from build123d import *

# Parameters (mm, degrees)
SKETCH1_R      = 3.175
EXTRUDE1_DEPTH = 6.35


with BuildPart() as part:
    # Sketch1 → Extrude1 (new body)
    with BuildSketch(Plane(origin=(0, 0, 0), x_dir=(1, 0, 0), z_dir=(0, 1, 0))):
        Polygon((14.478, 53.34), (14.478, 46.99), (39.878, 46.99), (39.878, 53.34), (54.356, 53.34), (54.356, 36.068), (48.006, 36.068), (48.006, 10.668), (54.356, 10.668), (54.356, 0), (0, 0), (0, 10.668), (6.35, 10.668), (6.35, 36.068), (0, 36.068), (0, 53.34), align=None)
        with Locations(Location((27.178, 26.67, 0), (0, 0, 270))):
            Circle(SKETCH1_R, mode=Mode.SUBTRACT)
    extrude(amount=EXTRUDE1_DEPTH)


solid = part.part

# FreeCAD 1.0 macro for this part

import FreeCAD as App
import Part
import Sketcher

V = App.Vector
Q = App.Units.Quantity

doc = App.newDocument("Part")
params = doc.addObject("Spreadsheet::Sheet", "Params")
for row, (alias, value) in enumerate([
    ("sketch1_diameter", "0.25 in"),
    ("sketch1_width", "1 in"),
    ("sketch1_width2", "0.57 in"),
    ("sketch1_width3", "0.25 in"),
    ("sketch1_height", "0.68 in"),
    ("pad1_length", "0.25 in"),
], start=1):
    params.set(f"A{row}", alias)
    params.set(f"B{row}", "=" + value)
    params.setAlias(f"B{row}", alias)

body = doc.addObject("PartDesign::Body", "Body")

sketch1 = body.newObject("Sketcher::SketchObject", "Sketch")
sketch1.AttachmentSupport = (doc.getObject("XZ_Plane"), [""])
sketch1.MapMode = "FlatFace"
sketch1.addGeometry([
    Part.LineSegment(V(14.5, -47, 0), V(14.5, -53.3, 0)),
    Part.LineSegment(V(14.5, -53.3, 0), V(0, -53.3, 0)),
    Part.LineSegment(V(0, -53.3, 0), V(0, -36.1, 0)),
    Part.LineSegment(V(0, -36.1, 0), V(6.3, -36.1, 0)),
    Part.LineSegment(V(6.3, -36.1, 0), V(6.3, -10.7, 0)),
    Part.LineSegment(V(6.3, -10.7, 0), V(0, -10.7, 0)),
    Part.LineSegment(V(0, -10.7, 0), V(0, 0, 0)),
    Part.LineSegment(V(0, 0, 0), V(54.4, 0, 0)),
    Part.LineSegment(V(54.4, 0, 0), V(54.4, -10.7, 0)),
    Part.LineSegment(V(54.4, -10.7, 0), V(48, -10.7, 0)),
    Part.LineSegment(V(48, -10.7, 0), V(48, -36.1, 0)),
    Part.LineSegment(V(48, -36.1, 0), V(54.4, -36.1, 0)),
    Part.LineSegment(V(54.4, -36.1, 0), V(54.4, -53.3, 0)),
    Part.LineSegment(V(54.4, -53.3, 0), V(39.9, -53.3, 0)),
    Part.LineSegment(V(39.9, -53.3, 0), V(39.9, -47, 0)),
    Part.LineSegment(V(39.9, -47, 0), V(14.5, -47, 0)),
    Part.Circle(V(27.2, -26.7, 0), V(0, 0, 1), 3.2),
], False)
sketch1.addConstraint([
    Sketcher.Constraint("Coincident", 0, 2, 1, 1),
    Sketcher.Constraint("Coincident", 1, 2, 2, 1),
    Sketcher.Constraint("Coincident", 2, 2, 3, 1),
    Sketcher.Constraint("Coincident", 3, 2, 4, 1),
    Sketcher.Constraint("Coincident", 4, 2, 5, 1),
    Sketcher.Constraint("Coincident", 5, 2, 6, 1),
    Sketcher.Constraint("Coincident", 6, 2, 7, 1),
    Sketcher.Constraint("Coincident", 7, 2, 8, 1),
    Sketcher.Constraint("Coincident", 8, 2, 9, 1),
    Sketcher.Constraint("Coincident", 9, 2, 10, 1),
    Sketcher.Constraint("Coincident", 10, 2, 11, 1),
    Sketcher.Constraint("Coincident", 11, 2, 12, 1),
    Sketcher.Constraint("Coincident", 12, 2, 13, 1),
    Sketcher.Constraint("Coincident", 13, 2, 14, 1),
    Sketcher.Constraint("Coincident", 14, 2, 15, 1),
    Sketcher.Constraint("Coincident", 15, 2, 0, 1),
    Sketcher.Constraint("Vertical", 0),
    Sketcher.Constraint("Horizontal", 1),
    Sketcher.Constraint("Vertical", 2),
    Sketcher.Constraint("Horizontal", 3),
    Sketcher.Constraint("Vertical", 4),
    Sketcher.Constraint("Horizontal", 5),
    Sketcher.Constraint("Vertical", 6),
    Sketcher.Constraint("Horizontal", 7),
    Sketcher.Constraint("Vertical", 8),
    Sketcher.Constraint("Horizontal", 9),
    Sketcher.Constraint("Vertical", 10),
    Sketcher.Constraint("Horizontal", 11),
    Sketcher.Constraint("Vertical", 12),
    Sketcher.Constraint("Horizontal", 13),
    Sketcher.Constraint("Vertical", 14),
    Sketcher.Constraint("Horizontal", 15),
    Sketcher.Constraint("Coincident", 6, 2, -1, 1),
    Sketcher.Constraint("PointOnObject", 1, 2, -2),
    Sketcher.Constraint("Horizontal", 5, 2, 8, 2),
    Sketcher.Constraint("Horizontal", 3, 2, 10, 2),
    Sketcher.Constraint("Horizontal", 1, 2, 12, 2),
    Sketcher.Constraint("Vertical", 8, 2, 11, 2),
    Sketcher.Constraint("Equal", 5, 9),
    Sketcher.Constraint("Equal", 1, 13),
    Sketcher.Constraint("Equal", 11, 0),
    Sketcher.Constraint("Equal", 15, 4),
    Sketcher.Constraint("Diameter", 16, Q("0.25 in")),
    Sketcher.Constraint("DistanceX", 15, 2, 15, 1, Q("1 in")),
    Sketcher.Constraint("DistanceX", 1, 2, 1, 1, Q("0.57 in")),
    Sketcher.Constraint("DistanceX", 3, 1, 3, 2, Q("0.25 in")),
    Sketcher.Constraint("DistanceY", 2, 1, 2, 2, Q("0.68 in")),
    Sketcher.Constraint("DistanceY", 6, 1, 6, 2, Q("0.42 in")),
    Sketcher.Constraint("DistanceX", 0, 2, 16, 3, Q("0.5 in")),
    Sketcher.Constraint("DistanceY", 14, 2, 16, 3, Q("0.8 in")),
])
sketch1.setExpression("Constraints[42]", "Params.sketch1_diameter")
sketch1.setExpression("Constraints[43]", "Params.sketch1_width")
sketch1.setExpression("Constraints[44]", "Params.sketch1_width2")
sketch1.setExpression("Constraints[45]", "Params.sketch1_width3")
sketch1.setExpression("Constraints[46]", "Params.sketch1_height")
pad1 = body.newObject("PartDesign::Pad", "Pad")
pad1.Profile = sketch1
pad1.setExpression("Length", "Params.pad1_length")
pad1.Reversed = True

doc.recompute()
